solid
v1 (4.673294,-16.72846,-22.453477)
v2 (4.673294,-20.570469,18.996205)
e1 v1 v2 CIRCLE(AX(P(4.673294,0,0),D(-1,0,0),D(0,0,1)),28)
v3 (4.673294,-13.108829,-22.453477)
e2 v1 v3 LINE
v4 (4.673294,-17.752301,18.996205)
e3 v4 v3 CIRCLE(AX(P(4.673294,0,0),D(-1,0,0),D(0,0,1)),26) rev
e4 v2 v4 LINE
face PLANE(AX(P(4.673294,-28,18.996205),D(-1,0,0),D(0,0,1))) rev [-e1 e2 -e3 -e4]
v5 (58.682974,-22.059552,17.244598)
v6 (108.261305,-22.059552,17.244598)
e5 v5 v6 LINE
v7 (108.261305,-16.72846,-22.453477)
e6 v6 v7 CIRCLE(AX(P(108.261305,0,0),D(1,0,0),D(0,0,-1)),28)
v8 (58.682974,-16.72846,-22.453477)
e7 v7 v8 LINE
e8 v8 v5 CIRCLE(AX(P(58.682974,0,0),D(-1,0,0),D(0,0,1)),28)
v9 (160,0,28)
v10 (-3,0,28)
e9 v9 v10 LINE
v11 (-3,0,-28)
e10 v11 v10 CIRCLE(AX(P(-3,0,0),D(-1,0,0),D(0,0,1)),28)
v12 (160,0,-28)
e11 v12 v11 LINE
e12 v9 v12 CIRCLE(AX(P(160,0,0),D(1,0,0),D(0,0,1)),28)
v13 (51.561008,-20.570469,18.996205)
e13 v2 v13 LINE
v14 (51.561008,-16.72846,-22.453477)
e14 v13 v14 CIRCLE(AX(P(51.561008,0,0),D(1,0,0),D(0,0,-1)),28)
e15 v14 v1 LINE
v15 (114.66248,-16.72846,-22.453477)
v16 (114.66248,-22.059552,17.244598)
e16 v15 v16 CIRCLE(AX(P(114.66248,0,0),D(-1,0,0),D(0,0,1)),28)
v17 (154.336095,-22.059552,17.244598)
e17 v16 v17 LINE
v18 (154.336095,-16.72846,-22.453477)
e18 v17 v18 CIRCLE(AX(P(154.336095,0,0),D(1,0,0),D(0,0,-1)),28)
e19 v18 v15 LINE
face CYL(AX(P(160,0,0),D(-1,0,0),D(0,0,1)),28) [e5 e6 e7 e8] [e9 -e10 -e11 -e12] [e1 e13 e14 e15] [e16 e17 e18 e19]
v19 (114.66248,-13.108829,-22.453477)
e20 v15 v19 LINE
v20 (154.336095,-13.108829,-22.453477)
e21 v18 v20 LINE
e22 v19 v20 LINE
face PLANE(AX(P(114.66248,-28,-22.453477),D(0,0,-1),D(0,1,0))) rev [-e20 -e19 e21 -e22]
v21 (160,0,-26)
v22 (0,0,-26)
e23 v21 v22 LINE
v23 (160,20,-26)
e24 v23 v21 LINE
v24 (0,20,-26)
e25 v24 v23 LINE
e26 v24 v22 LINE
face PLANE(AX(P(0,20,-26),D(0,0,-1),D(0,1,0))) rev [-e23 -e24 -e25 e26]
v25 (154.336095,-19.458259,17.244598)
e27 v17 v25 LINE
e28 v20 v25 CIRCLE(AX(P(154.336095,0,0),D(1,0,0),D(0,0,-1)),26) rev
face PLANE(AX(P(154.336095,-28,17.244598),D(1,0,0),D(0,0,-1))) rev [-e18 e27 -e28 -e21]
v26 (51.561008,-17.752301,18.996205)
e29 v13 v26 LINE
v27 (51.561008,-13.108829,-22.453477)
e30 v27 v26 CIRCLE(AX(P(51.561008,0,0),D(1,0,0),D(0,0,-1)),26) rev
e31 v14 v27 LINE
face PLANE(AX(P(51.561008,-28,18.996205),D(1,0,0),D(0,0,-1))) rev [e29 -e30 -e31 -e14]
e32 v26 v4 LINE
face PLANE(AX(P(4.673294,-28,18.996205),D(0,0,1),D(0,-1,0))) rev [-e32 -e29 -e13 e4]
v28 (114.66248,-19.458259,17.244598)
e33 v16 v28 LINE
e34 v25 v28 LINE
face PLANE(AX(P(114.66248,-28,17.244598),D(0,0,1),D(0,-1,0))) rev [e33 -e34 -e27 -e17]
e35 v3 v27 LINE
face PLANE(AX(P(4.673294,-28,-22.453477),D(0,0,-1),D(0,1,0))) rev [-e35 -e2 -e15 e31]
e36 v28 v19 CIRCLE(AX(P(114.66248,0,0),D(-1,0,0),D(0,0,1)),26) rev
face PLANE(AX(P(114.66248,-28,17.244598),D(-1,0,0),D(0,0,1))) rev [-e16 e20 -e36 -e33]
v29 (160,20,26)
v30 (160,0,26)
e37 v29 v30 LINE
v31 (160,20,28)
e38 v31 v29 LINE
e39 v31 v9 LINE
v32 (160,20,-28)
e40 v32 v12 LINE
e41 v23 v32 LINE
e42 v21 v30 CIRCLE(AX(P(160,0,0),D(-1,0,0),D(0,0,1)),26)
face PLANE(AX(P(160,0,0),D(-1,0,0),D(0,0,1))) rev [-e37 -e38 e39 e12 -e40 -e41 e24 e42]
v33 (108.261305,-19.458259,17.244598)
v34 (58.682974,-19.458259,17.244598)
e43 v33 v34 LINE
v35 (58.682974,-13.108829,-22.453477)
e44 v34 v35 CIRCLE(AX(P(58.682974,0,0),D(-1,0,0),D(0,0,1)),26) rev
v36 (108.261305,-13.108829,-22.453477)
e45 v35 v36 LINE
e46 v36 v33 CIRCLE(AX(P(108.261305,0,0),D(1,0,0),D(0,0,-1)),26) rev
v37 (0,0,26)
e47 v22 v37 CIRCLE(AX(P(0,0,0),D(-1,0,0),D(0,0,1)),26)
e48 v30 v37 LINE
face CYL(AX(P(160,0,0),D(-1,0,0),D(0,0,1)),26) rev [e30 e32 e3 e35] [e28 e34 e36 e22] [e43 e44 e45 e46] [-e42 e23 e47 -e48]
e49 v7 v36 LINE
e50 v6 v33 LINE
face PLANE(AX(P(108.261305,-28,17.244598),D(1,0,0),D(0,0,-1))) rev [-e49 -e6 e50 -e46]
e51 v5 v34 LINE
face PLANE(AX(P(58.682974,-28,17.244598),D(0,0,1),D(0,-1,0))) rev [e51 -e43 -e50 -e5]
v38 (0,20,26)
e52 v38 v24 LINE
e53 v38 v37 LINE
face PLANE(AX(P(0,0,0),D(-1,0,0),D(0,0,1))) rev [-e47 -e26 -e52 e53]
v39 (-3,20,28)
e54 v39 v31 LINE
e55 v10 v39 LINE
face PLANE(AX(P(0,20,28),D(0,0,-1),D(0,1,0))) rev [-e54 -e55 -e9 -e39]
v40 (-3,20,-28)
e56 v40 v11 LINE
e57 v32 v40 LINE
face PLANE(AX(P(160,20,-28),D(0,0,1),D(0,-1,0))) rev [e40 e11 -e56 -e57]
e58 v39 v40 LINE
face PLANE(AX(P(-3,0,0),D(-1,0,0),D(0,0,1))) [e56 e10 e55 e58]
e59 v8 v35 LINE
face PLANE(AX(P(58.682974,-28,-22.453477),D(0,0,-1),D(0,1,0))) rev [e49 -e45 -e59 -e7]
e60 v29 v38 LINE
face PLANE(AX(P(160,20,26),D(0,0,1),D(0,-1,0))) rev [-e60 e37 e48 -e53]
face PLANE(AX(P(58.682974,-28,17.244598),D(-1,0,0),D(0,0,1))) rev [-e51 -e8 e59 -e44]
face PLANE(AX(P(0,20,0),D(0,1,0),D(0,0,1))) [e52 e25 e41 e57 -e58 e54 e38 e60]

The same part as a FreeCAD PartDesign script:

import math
import FreeCAD as App
import Part
import Sketcher
from FreeCAD import Vector


def add_polygon(sketch, points):
    """Adds a closed chain of lines whose ends are joined by coincident constraints."""
    first, n = sketch.GeometryCount, len(points)
    for a, b in zip(points, points[1:] + points[:1]):
        sketch.addGeometry(Part.LineSegment(App.Vector(*a, 0), App.Vector(*b, 0)), False)
    for i in range(n):
        sketch.addConstraint(Sketcher.Constraint("Coincident", first + i, 2, first + (i + 1) % n, 1))

doc = App.newDocument("Part")
body = doc.addObject("PartDesign::Body", "Body")

# Sketch on YZ plane
sketch1 = doc.addObject("Sketcher::SketchObject", "Sketch")
body.addObject(sketch1)
sketch1.AttachmentSupport = (doc.YZ_Plane, [""])
sketch1.MapMode = "FlatFace"
sketch1.addGeometry([
    Part.LineSegment(Vector(0, -28, 0), Vector(0, -26, 0)),
    Part.ArcOfCircle(Part.Circle(Vector(0, 0, 0), Vector(0, 0, 1), 26), math.radians(90), math.radians(270)),
    Part.LineSegment(Vector(0, 26, 0), Vector(0, 28, 0)),
    Part.ArcOfCircle(Part.Circle(Vector(0, 0, 0), Vector(0, 0, 1), 28), math.radians(90), math.radians(270)),
], False)
sketch1.addConstraint([
    Sketcher.Constraint("Coincident", 0, 2, 1, 2),
    Sketcher.Constraint("Coincident", 1, 1, 2, 1),
    Sketcher.Constraint("Coincident", 2, 2, 3, 1),
    Sketcher.Constraint("Coincident", 3, 2, 0, 1),
    Sketcher.Constraint("Vertical", 0),
    Sketcher.Constraint("Vertical", 2),
    Sketcher.Constraint("Coincident", 1, 3, -1, 1),
    Sketcher.Constraint("Coincident", 3, 3, -1, 1),
    Sketcher.Constraint("PointOnObject", 0, 2, -2),
    Sketcher.Constraint("PointOnObject", 1, 1, -2),
    Sketcher.Constraint("Radius", 1, 26.0),
    Sketcher.Constraint("Radius", 3, 28.0),
])
pad1 = doc.addObject("PartDesign::Pad", "Pad")
body.addObject(pad1)
pad1.Profile = sketch1
pad1.Length = 160

# Sketch on XZ plane
sketch2 = doc.addObject("Sketcher::SketchObject", "Sketch001")
body.addObject(sketch2)
sketch2.AttachmentSupport = (doc.XZ_Plane, [""])
sketch2.MapMode = "FlatFace"
add_polygon(sketch2, [(0, -28), (0, -26), (160, -26), (160, -28)])  # lines 0-3
add_polygon(sketch2, [(0, 26), (0, 28), (160, 28), (160, 26)])  # lines 4-7
sketch2.addConstraint([
    Sketcher.Constraint("Vertical", 0),
    Sketcher.Constraint("Horizontal", 1),
    Sketcher.Constraint("Vertical", 2),
    Sketcher.Constraint("Horizontal", 3),
    Sketcher.Constraint("Vertical", 4),
    Sketcher.Constraint("Horizontal", 5),
    Sketcher.Constraint("Vertical", 6),
    Sketcher.Constraint("Horizontal", 7),
    Sketcher.Constraint("Symmetric", 3, 2, 4, 2, -1, 1),
    Sketcher.Constraint("Symmetric", 1, 2, 6, 2, -1),
    Sketcher.Constraint("PointOnObject", 0, 2, -2),
    Sketcher.Constraint("DistanceX", 1, 1, 1, 2, 160.0),
    Sketcher.Constraint("DistanceY", 0, 1, 0, 2, 2.0),
    Sketcher.Constraint("DistanceY", 0, 2, -1, 1, 26.0),
])
pad2 = doc.addObject("PartDesign::Pad", "Pad001")
body.addObject(pad2)
pad2.Profile = sketch2
pad2.Length = 20
pad2.Reversed = True

# Sketch on YZ plane
sketch3 = doc.addObject("Sketcher::SketchObject", "Sketch002")
body.addObject(sketch3)
sketch3.AttachmentSupport = (doc.YZ_Plane, [""])
sketch3.MapMode = "FlatFace"
sketch3.AttachmentOffset = App.Placement(Vector(0, 0, -3), App.Rotation())
sketch3.addGeometry([
    Part.LineSegment(Vector(20, 28, 0), Vector(20, -28, 0)),
    Part.LineSegment(Vector(20, -28, 0), Vector(0, -28, 0)),
    Part.ArcOfCircle(Part.Circle(Vector(0, 0, 0), Vector(0, 0, 1), 28), math.radians(90), math.radians(270)),
    Part.LineSegment(Vector(0, 28, 0), Vector(20, 28, 0)),
], False)
sketch3.addConstraint([
    Sketcher.Constraint("Coincident", 0, 2, 1, 1),
    Sketcher.Constraint("Tangent", 1, 2, 2, 2),
    Sketcher.Constraint("Tangent", 2, 1, 3, 1),
    Sketcher.Constraint("Coincident", 3, 2, 0, 1),
    Sketcher.Constraint("Vertical", 0),
    Sketcher.Constraint("Horizontal", 1),
    Sketcher.Constraint("Horizontal", 3),
    Sketcher.Constraint("Coincident", 2, 3, -1, 1),
    Sketcher.Constraint("Radius", 2, 28.0),
    Sketcher.Constraint("DistanceX", 1, 2, 1, 1, 20.0),
])
pad3 = doc.addObject("PartDesign::Pad", "Pad002")
body.addObject(pad3)
pad3.Profile = sketch3
pad3.Length = 3

# Sketch on XZ plane
sketch4 = doc.addObject("Sketcher::SketchObject", "Sketch003")
body.addObject(sketch4)
sketch4.AttachmentSupport = (doc.XZ_Plane, [""])
sketch4.MapMode = "FlatFace"
sketch4.AttachmentOffset = App.Placement(Vector(0, 0, -20), App.Rotation())
add_polygon(sketch4, [(5, -22), (5, 19), (52, 19), (52, -22)])  # lines 0-3
add_polygon(sketch4, [(59, -22), (59, 17), (108, 17), (108, -22)])  # lines 4-7
add_polygon(sketch4, [(115, -22), (115, 17), (154, 17), (154, -22)])  # lines 8-11
sketch4.addConstraint([
    Sketcher.Constraint("Vertical", 0),
    Sketcher.Constraint("Horizontal", 1),
    Sketcher.Constraint("Vertical", 2),
    Sketcher.Constraint("Horizontal", 3),
    Sketcher.Constraint("Vertical", 4),
    Sketcher.Constraint("Horizontal", 5),
    Sketcher.Constraint("Vertical", 6),
    Sketcher.Constraint("Horizontal", 7),
    Sketcher.Constraint("Vertical", 8),
    Sketcher.Constraint("Horizontal", 9),
    Sketcher.Constraint("Vertical", 10),
    Sketcher.Constraint("Horizontal", 11),
    Sketcher.Constraint("Horizontal", 3, 2, 6, 2),
    Sketcher.Constraint("Horizontal", 5, 2, 8, 2),
    Sketcher.Constraint("Horizontal", 7, 2, 10, 2),
    Sketcher.Constraint("DistanceX", 5, 1, 5, 2, 49.578331),
    Sketcher.Constraint("DistanceY", 0, 1, 0, 2, 41.449681),
    Sketcher.Constraint("DistanceY", -1, 1, 4, 2, 17.244598),
    Sketcher.Constraint("DistanceX", 1, 1, 1, 2, 46.887714),
    Sketcher.Constraint("DistanceX", 9, 1, 9, 2, 39.673615),
    Sketcher.Constraint("DistanceY", 4, 1, 4, 2, 39.698075),
    Sketcher.Constraint("DistanceX", -1, 1, 1, 2, 51.561008),
    Sketcher.Constraint("DistanceX", -1, 1, 8, 2, 114.66248),
    Sketcher.Constraint("DistanceX", 0, 2, 4, 2, 54.00968),
])
pocket1 = doc.addObject("PartDesign::Pocket", "Pocket")
body.addObject(pocket1)
pocket1.Profile = sketch4
pocket1.Type = "ThroughAll"
pocket1.Reversed = True

doc.recompute()
